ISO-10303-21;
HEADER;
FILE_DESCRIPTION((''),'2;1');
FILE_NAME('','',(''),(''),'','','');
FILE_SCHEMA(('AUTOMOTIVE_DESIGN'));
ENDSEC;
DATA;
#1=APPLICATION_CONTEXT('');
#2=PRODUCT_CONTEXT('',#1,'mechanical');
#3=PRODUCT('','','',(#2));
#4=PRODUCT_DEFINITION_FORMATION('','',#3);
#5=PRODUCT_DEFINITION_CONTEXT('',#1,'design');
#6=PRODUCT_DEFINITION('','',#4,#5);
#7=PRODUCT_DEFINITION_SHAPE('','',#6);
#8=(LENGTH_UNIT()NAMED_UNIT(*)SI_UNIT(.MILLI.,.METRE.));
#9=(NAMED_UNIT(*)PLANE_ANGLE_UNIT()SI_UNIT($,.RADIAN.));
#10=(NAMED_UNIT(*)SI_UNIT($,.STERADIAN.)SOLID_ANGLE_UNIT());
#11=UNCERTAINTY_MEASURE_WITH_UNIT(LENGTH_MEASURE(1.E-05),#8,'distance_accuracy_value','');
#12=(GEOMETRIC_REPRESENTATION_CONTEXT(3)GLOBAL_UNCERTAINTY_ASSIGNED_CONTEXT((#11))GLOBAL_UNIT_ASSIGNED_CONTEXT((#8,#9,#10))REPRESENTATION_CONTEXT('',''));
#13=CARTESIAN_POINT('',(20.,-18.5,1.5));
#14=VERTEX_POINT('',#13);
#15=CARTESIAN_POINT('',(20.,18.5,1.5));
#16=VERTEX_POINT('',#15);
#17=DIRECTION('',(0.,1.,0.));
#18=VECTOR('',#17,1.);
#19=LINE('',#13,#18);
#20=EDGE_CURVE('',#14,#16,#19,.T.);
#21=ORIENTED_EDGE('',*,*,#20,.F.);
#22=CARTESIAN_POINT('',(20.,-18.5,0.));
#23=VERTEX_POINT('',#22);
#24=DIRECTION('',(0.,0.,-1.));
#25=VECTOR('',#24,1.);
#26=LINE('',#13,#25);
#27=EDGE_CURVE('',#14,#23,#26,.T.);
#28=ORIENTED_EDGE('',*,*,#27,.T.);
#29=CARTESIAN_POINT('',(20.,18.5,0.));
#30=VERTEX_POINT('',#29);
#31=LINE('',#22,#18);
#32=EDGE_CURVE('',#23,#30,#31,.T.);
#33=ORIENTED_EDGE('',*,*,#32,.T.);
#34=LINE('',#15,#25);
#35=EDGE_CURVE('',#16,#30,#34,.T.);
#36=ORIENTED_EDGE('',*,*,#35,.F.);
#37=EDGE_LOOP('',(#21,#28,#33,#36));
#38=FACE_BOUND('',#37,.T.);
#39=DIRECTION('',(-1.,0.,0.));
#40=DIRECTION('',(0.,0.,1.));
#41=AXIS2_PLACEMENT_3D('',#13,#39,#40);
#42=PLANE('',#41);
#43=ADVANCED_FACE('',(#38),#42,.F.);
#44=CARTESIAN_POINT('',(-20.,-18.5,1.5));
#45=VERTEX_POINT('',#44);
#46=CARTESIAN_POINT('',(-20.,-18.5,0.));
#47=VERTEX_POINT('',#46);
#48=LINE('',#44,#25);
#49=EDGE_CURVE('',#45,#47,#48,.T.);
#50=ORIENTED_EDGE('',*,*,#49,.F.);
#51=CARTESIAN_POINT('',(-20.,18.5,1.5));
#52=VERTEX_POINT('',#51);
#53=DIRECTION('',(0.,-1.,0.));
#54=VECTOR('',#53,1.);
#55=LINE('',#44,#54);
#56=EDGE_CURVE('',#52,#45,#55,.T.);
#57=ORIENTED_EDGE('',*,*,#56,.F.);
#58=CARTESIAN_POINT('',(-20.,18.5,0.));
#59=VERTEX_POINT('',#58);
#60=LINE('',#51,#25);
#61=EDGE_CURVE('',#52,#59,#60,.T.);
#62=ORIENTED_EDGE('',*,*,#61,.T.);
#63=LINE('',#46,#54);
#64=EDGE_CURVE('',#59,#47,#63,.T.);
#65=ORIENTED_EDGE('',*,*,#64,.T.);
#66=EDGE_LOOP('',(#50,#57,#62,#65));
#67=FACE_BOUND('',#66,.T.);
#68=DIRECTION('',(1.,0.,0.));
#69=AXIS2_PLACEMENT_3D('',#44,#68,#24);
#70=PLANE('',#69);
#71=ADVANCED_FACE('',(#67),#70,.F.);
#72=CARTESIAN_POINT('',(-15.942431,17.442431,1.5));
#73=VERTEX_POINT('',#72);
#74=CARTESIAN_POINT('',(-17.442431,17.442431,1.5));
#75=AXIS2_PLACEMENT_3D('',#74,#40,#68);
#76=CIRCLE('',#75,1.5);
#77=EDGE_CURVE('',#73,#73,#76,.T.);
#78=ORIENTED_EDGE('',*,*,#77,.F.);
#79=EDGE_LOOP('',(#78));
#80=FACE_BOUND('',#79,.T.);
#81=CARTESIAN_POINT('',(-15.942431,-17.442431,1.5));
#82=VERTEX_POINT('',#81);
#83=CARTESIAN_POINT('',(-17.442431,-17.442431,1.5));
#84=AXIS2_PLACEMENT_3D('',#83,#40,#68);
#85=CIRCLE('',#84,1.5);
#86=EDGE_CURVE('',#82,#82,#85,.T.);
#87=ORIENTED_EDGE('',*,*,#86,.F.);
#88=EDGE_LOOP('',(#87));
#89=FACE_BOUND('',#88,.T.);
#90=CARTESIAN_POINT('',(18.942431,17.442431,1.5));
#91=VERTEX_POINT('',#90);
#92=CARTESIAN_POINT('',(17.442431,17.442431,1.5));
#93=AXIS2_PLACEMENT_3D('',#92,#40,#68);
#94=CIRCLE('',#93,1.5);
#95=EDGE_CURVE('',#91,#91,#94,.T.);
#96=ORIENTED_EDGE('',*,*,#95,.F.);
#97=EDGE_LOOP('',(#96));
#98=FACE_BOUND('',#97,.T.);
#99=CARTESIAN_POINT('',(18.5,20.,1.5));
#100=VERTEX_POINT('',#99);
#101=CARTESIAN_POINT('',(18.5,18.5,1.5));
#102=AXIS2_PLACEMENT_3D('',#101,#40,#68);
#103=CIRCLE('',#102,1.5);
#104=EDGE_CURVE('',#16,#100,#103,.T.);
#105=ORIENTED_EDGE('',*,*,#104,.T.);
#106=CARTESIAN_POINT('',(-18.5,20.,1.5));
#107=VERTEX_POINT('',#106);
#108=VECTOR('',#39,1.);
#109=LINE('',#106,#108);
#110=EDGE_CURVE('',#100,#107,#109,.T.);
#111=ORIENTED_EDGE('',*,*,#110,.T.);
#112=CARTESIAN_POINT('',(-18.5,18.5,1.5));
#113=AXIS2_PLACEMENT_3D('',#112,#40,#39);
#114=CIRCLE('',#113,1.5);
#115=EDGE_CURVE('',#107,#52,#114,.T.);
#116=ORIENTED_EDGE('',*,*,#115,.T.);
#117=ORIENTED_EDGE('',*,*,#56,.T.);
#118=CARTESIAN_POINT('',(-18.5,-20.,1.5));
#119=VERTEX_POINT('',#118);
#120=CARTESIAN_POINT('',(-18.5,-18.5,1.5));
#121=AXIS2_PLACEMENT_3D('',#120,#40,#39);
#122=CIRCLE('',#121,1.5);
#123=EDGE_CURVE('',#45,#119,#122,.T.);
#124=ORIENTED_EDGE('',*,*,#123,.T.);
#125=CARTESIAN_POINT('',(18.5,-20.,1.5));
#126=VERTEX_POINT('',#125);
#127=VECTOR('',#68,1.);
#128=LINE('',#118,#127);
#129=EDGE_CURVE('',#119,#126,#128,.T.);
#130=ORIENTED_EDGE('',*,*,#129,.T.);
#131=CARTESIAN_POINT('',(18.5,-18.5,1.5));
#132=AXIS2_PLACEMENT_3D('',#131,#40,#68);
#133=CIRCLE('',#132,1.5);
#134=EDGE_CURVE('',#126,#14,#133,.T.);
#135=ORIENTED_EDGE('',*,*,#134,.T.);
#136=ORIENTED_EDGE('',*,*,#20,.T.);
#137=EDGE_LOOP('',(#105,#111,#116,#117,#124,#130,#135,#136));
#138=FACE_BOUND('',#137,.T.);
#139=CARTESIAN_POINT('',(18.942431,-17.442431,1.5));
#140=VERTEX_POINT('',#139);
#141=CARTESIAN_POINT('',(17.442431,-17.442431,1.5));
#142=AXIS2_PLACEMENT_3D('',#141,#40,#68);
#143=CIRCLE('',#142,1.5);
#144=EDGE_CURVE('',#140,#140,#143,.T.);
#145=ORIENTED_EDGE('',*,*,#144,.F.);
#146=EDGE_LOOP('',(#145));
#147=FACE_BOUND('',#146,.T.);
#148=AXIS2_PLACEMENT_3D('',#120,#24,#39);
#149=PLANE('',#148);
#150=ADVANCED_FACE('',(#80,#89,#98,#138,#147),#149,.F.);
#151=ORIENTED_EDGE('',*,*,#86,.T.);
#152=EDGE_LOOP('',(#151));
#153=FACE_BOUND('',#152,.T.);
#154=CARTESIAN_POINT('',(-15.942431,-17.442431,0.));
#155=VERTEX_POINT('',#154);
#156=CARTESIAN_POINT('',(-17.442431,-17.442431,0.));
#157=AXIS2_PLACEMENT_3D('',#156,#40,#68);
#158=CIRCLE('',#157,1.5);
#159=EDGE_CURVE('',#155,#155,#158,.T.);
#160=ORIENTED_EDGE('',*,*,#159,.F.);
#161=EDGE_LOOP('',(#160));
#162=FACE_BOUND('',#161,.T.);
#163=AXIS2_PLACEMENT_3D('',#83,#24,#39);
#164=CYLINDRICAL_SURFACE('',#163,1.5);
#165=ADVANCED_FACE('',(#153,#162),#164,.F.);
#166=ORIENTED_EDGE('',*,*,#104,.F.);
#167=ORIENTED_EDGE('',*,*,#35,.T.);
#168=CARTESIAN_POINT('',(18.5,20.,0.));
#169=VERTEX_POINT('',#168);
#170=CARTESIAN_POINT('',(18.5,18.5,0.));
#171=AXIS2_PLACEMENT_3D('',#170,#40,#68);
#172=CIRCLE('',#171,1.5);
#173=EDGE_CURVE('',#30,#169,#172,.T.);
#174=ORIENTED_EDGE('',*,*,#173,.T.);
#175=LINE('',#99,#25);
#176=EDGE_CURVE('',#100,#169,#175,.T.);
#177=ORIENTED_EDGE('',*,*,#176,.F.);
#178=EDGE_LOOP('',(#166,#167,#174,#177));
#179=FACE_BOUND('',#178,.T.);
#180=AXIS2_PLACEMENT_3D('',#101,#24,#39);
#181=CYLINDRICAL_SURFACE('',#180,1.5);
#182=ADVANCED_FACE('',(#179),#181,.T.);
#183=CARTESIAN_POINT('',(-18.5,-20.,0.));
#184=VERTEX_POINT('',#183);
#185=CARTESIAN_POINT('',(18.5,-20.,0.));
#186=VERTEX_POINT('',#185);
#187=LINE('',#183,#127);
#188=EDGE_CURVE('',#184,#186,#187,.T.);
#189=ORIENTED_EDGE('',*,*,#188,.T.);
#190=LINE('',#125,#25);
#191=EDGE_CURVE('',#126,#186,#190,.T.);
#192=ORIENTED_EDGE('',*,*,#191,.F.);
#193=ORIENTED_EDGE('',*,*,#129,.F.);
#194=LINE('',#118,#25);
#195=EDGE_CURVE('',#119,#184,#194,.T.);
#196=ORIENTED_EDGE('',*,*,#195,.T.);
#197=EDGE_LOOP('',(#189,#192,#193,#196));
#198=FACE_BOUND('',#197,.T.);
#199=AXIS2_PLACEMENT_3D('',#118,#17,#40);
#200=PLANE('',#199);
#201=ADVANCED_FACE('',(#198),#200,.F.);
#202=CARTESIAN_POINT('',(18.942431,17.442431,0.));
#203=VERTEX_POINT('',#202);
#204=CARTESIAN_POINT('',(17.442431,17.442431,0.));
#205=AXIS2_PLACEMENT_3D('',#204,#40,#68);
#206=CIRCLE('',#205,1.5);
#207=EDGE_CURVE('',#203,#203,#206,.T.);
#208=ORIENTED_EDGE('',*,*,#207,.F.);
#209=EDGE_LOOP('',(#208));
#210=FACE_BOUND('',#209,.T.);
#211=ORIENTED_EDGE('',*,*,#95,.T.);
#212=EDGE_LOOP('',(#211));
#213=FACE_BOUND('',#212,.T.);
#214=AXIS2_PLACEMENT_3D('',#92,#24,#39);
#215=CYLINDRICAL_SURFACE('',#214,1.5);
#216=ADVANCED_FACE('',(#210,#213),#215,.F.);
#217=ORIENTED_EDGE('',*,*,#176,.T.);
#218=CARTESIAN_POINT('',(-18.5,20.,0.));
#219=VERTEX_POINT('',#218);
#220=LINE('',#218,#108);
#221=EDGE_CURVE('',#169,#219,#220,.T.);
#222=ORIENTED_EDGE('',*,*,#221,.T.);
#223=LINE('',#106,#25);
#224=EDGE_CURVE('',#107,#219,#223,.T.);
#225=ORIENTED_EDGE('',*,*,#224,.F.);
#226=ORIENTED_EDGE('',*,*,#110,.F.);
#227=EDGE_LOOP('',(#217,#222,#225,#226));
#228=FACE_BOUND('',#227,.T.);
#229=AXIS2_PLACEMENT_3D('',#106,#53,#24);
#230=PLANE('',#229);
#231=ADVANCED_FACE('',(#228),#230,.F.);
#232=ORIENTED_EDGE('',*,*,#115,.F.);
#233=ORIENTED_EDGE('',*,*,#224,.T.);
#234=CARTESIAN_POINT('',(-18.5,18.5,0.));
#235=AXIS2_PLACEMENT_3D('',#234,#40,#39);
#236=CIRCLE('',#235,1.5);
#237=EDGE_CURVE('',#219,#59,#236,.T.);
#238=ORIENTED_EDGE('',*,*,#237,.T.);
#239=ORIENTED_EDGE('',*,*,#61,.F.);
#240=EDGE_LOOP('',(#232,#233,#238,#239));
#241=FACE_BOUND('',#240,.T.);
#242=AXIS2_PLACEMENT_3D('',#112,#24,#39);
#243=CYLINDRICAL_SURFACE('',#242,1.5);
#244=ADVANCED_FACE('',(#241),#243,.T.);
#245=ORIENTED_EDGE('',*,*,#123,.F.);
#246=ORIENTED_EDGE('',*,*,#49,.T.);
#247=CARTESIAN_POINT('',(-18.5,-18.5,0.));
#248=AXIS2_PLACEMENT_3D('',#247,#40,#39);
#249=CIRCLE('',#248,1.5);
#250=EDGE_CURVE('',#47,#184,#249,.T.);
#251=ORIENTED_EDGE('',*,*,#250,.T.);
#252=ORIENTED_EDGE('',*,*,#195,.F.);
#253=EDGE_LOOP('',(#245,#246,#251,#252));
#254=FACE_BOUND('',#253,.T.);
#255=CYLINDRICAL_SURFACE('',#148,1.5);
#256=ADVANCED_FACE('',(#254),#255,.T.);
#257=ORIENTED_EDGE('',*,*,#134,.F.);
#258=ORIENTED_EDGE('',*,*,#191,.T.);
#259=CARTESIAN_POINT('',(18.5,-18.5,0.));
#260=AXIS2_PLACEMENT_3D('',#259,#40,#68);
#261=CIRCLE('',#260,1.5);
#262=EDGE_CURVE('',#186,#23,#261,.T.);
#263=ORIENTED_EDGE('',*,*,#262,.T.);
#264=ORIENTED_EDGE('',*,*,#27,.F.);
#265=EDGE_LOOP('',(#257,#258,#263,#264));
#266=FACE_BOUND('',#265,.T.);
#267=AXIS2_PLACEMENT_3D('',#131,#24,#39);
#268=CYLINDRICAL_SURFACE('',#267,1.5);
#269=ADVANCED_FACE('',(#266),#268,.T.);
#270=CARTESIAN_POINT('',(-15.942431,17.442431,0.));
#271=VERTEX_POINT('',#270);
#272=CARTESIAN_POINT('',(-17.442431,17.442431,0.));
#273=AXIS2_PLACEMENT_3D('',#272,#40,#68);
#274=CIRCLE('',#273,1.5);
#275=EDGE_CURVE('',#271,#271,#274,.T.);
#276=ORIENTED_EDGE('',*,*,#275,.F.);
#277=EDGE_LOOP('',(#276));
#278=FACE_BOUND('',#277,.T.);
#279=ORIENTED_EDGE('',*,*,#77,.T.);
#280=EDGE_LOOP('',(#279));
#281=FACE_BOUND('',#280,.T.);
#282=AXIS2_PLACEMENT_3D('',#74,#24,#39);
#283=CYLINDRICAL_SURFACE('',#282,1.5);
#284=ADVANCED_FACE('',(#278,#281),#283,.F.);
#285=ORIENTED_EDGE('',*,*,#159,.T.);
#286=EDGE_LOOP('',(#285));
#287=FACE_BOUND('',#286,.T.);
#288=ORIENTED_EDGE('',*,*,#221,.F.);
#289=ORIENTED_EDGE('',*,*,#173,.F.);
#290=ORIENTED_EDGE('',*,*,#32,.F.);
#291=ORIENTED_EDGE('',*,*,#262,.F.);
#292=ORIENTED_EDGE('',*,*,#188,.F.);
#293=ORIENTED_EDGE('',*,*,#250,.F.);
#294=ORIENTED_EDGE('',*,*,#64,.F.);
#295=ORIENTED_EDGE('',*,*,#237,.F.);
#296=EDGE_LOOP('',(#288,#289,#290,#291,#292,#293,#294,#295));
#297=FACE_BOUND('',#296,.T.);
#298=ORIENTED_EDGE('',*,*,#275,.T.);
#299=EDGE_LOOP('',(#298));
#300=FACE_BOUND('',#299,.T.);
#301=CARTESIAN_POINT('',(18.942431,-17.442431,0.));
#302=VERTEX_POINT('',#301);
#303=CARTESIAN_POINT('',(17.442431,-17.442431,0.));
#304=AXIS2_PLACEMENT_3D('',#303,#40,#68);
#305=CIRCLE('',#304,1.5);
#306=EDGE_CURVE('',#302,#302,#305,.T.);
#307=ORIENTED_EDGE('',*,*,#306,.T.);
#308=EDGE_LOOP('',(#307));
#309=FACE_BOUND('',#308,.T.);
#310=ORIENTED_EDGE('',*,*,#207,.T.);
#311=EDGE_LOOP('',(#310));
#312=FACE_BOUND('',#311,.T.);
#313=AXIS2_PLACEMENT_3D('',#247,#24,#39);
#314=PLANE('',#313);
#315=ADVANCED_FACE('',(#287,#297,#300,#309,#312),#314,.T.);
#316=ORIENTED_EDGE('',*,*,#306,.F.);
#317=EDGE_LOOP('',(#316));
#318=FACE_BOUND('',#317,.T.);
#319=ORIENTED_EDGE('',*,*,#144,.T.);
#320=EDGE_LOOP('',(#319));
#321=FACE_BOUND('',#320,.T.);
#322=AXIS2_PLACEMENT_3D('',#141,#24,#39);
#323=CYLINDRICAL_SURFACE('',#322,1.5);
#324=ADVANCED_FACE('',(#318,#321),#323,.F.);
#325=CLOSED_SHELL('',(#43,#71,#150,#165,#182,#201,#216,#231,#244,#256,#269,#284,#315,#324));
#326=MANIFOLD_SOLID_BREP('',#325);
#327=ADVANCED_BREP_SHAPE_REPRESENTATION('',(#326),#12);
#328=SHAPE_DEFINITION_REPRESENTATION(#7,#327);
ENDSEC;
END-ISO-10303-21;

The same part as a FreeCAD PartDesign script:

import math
import FreeCAD as App
import Part
import Sketcher
Q = App.Units.Quantity

doc = App.newDocument("Part")
body = doc.addObject("PartDesign::Body", "Body")

sketch1 = doc.addObject("Sketcher::SketchObject", "Sketch")
body.addObject(sketch1)
sketch1.AttachmentSupport = (doc.XY_Plane, [""])
sketch1.MapMode = "FlatFace"
sketch1.addGeometry([
    Part.LineSegment(App.Vector(-18.5, -20, 0), App.Vector(18.5, -20, 0)),
    Part.ArcOfCircle(Part.Circle(App.Vector(18.5, -18.5, 0), App.Vector(0, 0, 1), 1.5), math.radians(-90), math.radians(0)),
    Part.LineSegment(App.Vector(20, -18.5, 0), App.Vector(20, 18.5, 0)),
    Part.ArcOfCircle(Part.Circle(App.Vector(18.5, 18.5, 0), App.Vector(0, 0, 1), 1.5), math.radians(0), math.radians(90)),
    Part.LineSegment(App.Vector(18.5, 20, 0), App.Vector(-18.5, 20, 0)),
    Part.ArcOfCircle(Part.Circle(App.Vector(-18.5, 18.5, 0), App.Vector(0, 0, 1), 1.5), math.radians(90), math.radians(180)),
    Part.LineSegment(App.Vector(-20, 18.5, 0), App.Vector(-20, -18.5, 0)),
    Part.ArcOfCircle(Part.Circle(App.Vector(-18.5, -18.5, 0), App.Vector(0, 0, 1), 1.5), math.radians(180), math.radians(270)),
    Part.Circle(App.Vector(-17.4, -17.4, 0), App.Vector(0, 0, 1), 1.5),
    Part.Circle(App.Vector(17.4, -17.4, 0), App.Vector(0, 0, 1), 1.5),
    Part.Circle(App.Vector(-17.4, 17.4, 0), App.Vector(0, 0, 1), 1.5),
    Part.Circle(App.Vector(17.4, 17.4, 0), App.Vector(0, 0, 1), 1.5),
], False)
sketch1.addConstraint([
    Sketcher.Constraint("Tangent", 0, 2, 1, 1),
    Sketcher.Constraint("Tangent", 1, 2, 2, 1),
    Sketcher.Constraint("Tangent", 2, 2, 3, 1),
    Sketcher.Constraint("Tangent", 3, 2, 4, 1),
    Sketcher.Constraint("Tangent", 4, 2, 5, 1),
    Sketcher.Constraint("Tangent", 5, 2, 6, 1),
    Sketcher.Constraint("Tangent", 6, 2, 7, 1),
    Sketcher.Constraint("Tangent", 7, 2, 0, 1),
    Sketcher.Constraint("Horizontal", 0),
    Sketcher.Constraint("Vertical", 2),
    Sketcher.Constraint("Horizontal", 4),
    Sketcher.Constraint("Vertical", 6),
    Sketcher.Constraint("Equal", 1, 3),
    Sketcher.Constraint("Equal", 3, 5),
    Sketcher.Constraint("Equal", 5, 7),
    Sketcher.Constraint("Equal", 7, 8),
    Sketcher.Constraint("Equal", 8, 9),
    Sketcher.Constraint("Equal", 9, 10),
    Sketcher.Constraint("Equal", 10, 11),
    Sketcher.Constraint("Symmetric", 1, 3, 5, 3, -1, 1),
    Sketcher.Constraint("Symmetric", 9, 3, 10, 3, -1, 1),
    Sketcher.Constraint("Symmetric", 8, 3, 11, 3, -1, 1),
    Sketcher.Constraint("Symmetric", 8, 3, 9, 3, -2),
    Sketcher.Constraint("Equal", 4, 2),
    Sketcher.Constraint("Diameter", 8, Q("3 mm")),
    Sketcher.Constraint("DistanceX", 0, 1, 0, 2, Q("37 mm")),
    Sketcher.Constraint("DistanceX", 8, 3, -1, 1, Q("17.442431 mm")),
    Sketcher.Constraint("DistanceY", 8, 3, -1, 1, Q("17.442431 mm")),
])
pad1 = doc.addObject("PartDesign::Pad", "Pad")
body.addObject(pad1)
pad1.Profile = sketch1
pad1.Length = 1.5

doc.recompute()
